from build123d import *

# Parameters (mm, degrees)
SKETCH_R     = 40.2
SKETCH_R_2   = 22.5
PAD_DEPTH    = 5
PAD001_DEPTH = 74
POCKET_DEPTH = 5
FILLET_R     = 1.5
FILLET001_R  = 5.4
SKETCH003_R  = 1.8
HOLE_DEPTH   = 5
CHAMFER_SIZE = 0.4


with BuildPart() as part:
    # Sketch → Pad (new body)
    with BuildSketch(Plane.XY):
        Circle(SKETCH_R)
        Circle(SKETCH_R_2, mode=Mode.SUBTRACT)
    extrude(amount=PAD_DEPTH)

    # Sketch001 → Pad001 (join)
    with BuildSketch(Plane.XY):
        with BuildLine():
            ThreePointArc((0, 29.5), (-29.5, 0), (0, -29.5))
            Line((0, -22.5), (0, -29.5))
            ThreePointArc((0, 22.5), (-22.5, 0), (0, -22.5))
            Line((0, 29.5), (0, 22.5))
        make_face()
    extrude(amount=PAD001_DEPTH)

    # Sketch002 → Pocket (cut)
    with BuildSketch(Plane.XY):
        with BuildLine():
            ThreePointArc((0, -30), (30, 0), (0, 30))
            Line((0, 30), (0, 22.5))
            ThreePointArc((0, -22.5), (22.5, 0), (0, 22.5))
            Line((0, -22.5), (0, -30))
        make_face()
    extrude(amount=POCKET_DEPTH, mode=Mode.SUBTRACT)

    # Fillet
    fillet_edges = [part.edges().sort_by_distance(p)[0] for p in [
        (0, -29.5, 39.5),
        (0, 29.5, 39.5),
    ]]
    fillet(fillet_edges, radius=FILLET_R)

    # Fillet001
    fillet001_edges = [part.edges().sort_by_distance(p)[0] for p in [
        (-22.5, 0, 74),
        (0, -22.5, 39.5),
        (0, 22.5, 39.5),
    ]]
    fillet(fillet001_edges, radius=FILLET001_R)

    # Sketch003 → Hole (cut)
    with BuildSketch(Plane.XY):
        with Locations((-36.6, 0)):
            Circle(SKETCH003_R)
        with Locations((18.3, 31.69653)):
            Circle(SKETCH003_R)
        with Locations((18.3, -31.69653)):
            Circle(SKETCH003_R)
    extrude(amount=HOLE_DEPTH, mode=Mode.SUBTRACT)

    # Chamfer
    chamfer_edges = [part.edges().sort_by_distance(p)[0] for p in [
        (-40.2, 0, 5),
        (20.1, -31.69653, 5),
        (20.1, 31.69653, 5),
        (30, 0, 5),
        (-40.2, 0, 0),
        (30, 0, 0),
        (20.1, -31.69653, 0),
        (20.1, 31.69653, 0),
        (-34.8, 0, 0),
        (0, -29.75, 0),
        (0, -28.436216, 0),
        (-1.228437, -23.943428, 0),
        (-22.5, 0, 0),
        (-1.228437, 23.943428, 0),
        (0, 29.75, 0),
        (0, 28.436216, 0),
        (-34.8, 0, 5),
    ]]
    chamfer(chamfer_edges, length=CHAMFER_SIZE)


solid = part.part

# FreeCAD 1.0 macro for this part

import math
import FreeCAD as App
import Part
import Sketcher

V = App.Vector
Q = App.Units.Quantity


def edges_at(feature, points):
    """Names of the edges that pass closest to the given points."""
    edges = feature.Shape.Edges
    near = lambda p: min(range(len(edges)), key=lambda i: edges[i].distToShape(Part.Vertex(*p))[0])
    return sorted({f"Edge{near(p) + 1}" for p in points})

doc = App.newDocument("Part")
body = doc.addObject("PartDesign::Body", "Body")

# Sketch on XY plane
sketch1 = body.newObject("Sketcher::SketchObject", "Sketch")
sketch1.AttachmentSupport = (doc.getObject("XY_Plane"), [""])
sketch1.MapMode = "FlatFace"
sketch1.addGeometry(Part.Circle(V(0, 0, 0), V(0, 0, 1), 40.2), False)
sketch1.addGeometry(Part.Circle(V(0, 0, 0), V(0, 0, 1), 22.5), False)
sketch1.addConstraint(Sketcher.Constraint("Coincident", 0, 3, -1, 1))
sketch1.addConstraint(Sketcher.Constraint("Coincident", 1, 3, -1, 1))
sketch1.addConstraint(Sketcher.Constraint("Diameter", 1, Q("45 mm")))
sketch1.addConstraint(Sketcher.Constraint("Diameter", 0, Q("80.4 mm")))
pad1 = body.newObject("PartDesign::Pad", "Pad")
pad1.Profile = sketch1
pad1.Length = 5

# Sketch on XY plane
sketch2 = body.newObject("Sketcher::SketchObject", "Sketch001")
sketch2.AttachmentSupport = (doc.getObject("XY_Plane"), [""])
sketch2.MapMode = "FlatFace"
sketch2.addGeometry(Part.ArcOfCircle(Part.Circle(V(0, 0, 0), V(0, 0, 1), 29.5), math.radians(90), math.radians(270)), False)
sketch2.addGeometry(Part.LineSegment(V(0, -29.5, 0), V(0, -22.5, 0)), False)
sketch2.addGeometry(Part.ArcOfCircle(Part.Circle(V(0, 0, 0), V(0, 0, 1), 22.5), math.radians(90), math.radians(270)), False)
sketch2.addGeometry(Part.LineSegment(V(0, 22.5, 0), V(0, 29.5, 0)), False)
sketch2.addConstraint(Sketcher.Constraint("Coincident", 0, 2, 1, 1))
sketch2.addConstraint(Sketcher.Constraint("Coincident", 1, 2, 2, 2))
sketch2.addConstraint(Sketcher.Constraint("Coincident", 2, 1, 3, 1))
sketch2.addConstraint(Sketcher.Constraint("Coincident", 3, 2, 0, 1))
sketch2.addConstraint(Sketcher.Constraint("Vertical", 1))
sketch2.addConstraint(Sketcher.Constraint("Vertical", 3))
sketch2.addConstraint(Sketcher.Constraint("Coincident", 0, 3, -1, 1))
sketch2.addConstraint(Sketcher.Constraint("Coincident", 2, 3, -1, 1))
sketch2.addConstraint(Sketcher.Constraint("PointOnObject", 0, 2, -2))
sketch2.addConstraint(Sketcher.Constraint("PointOnObject", 2, 1, -2))
sketch2.addConstraint(Sketcher.Constraint("Radius", 0, Q("29.5 mm")))
sketch2.addConstraint(Sketcher.Constraint("Radius", 2, Q("22.5 mm")))
pad2 = body.newObject("PartDesign::Pad", "Pad001")
pad2.Profile = sketch2
pad2.Length = 74

# Sketch on XY plane
sketch3 = body.newObject("Sketcher::SketchObject", "Sketch002")
sketch3.AttachmentSupport = (doc.getObject("XY_Plane"), [""])
sketch3.MapMode = "FlatFace"
sketch3.addGeometry(Part.ArcOfCircle(Part.Circle(V(0, 0, 0), V(0, 0, 1), 30), math.radians(-90), math.radians(90)), False)
sketch3.addGeometry(Part.LineSegment(V(0, 30, 0), V(0, 22.5, 0)), False)
sketch3.addGeometry(Part.ArcOfCircle(Part.Circle(V(0, 0, 0), V(0, 0, 1), 22.5), math.radians(-90), math.radians(90)), False)
sketch3.addGeometry(Part.LineSegment(V(0, -22.5, 0), V(0, -30, 0)), False)
sketch3.addConstraint(Sketcher.Constraint("Coincident", 0, 2, 1, 1))
sketch3.addConstraint(Sketcher.Constraint("Coincident", 1, 2, 2, 2))
sketch3.addConstraint(Sketcher.Constraint("Coincident", 2, 1, 3, 1))
sketch3.addConstraint(Sketcher.Constraint("Coincident", 3, 2, 0, 1))
sketch3.addConstraint(Sketcher.Constraint("Vertical", 1))
sketch3.addConstraint(Sketcher.Constraint("Vertical", 3))
sketch3.addConstraint(Sketcher.Constraint("Coincident", 0, 3, -1, 1))
sketch3.addConstraint(Sketcher.Constraint("Coincident", 2, 3, -1, 1))
sketch3.addConstraint(Sketcher.Constraint("PointOnObject", 0, 2, -2))
sketch3.addConstraint(Sketcher.Constraint("PointOnObject", 2, 1, -2))
sketch3.addConstraint(Sketcher.Constraint("Radius", 0, Q("30 mm")))
sketch3.addConstraint(Sketcher.Constraint("Radius", 2, Q("22.5 mm")))
pocket1 = body.newObject("PartDesign::Pocket", "Pocket")
pocket1.Profile = sketch3
pocket1.Length = 5
pocket1.Reversed = True
doc.recompute()

fillet = body.newObject("PartDesign::Fillet", "Fillet")
fillet.Base = (pocket1, edges_at(pocket1, [(0, -29.5, 39.5), (0, 29.5, 39.5)]))
fillet.Radius = 1.5
doc.recompute()

fillet2 = body.newObject("PartDesign::Fillet", "Fillet001")
fillet2.Base = (fillet, edges_at(fillet, [(-22.5, 0, 74), (0, -22.5, 37), (0, 22.5, 37)]))
fillet2.Radius = 5.4

# Sketch on XY plane
sketch4 = body.newObject("Sketcher::SketchObject", "Sketch003")
sketch4.AttachmentSupport = (doc.getObject("XY_Plane"), [""])
sketch4.MapMode = "FlatFace"
sketch4.addGeometry(Part.Circle(V(-36.6, 0, 0), V(0, 0, 1), 1.8), False)
sketch4.addGeometry(Part.Circle(V(18.3, 31.69653, 0), V(0, 0, 1), 1.8), False)
sketch4.addGeometry(Part.Circle(V(18.3, -31.69653, 0), V(0, 0, 1), 1.8), False)
sketch4.addConstraint(Sketcher.Constraint("Equal", 0, 1))
sketch4.addConstraint(Sketcher.Constraint("Equal", 1, 2))
sketch4.addConstraint(Sketcher.Constraint("Symmetric", 1, 3, 2, 3, -1))
sketch4.addConstraint(Sketcher.Constraint("PointOnObject", 0, 3, -1))
sketch4.addConstraint(Sketcher.Constraint("Diameter", 0, Q("3.6 mm")))
sketch4.addConstraint(Sketcher.Constraint("DistanceX", 0, 3, -1, 1, Q("36.6 mm")))
sketch4.addConstraint(Sketcher.Constraint("DistanceX", -1, 1, 1, 3, Q("18.3 mm")))
sketch4.addConstraint(Sketcher.Constraint("DistanceY", -1, 1, 1, 3, Q("31.69653 mm")))
pocket2 = body.newObject("PartDesign::Pocket", "Pocket001")
pocket2.Profile = sketch4
pocket2.Length = 5
pocket2.Reversed = True
doc.recompute()

chamfer = body.newObject("PartDesign::Chamfer", "Chamfer")
chamfer.Base = (pocket2, edges_at(pocket2, [
    (-40.2, 0, 5),
    (16.5, -31.697, 5),
    (16.5, 31.697, 5),
    (30, 0, 5),
    (-40.2, 0, 0),
    (30, 0, 0),
    (16.5, -31.697, 0),
    (16.5, 31.697, 0),
    (-38.4, 0, 0),
    (0, -28.686, 0),
    (0, -28.686, 0),
    (-1.228, -23.943, 0),
    (-22.5, 0, 0),
    (-1.228, 23.943, 0),
    (0, 28.686, 0),
    (0, 28.686, 0),
    (-38.4, 0, 5),
]))
chamfer.Size = 0.4

doc.recompute()
